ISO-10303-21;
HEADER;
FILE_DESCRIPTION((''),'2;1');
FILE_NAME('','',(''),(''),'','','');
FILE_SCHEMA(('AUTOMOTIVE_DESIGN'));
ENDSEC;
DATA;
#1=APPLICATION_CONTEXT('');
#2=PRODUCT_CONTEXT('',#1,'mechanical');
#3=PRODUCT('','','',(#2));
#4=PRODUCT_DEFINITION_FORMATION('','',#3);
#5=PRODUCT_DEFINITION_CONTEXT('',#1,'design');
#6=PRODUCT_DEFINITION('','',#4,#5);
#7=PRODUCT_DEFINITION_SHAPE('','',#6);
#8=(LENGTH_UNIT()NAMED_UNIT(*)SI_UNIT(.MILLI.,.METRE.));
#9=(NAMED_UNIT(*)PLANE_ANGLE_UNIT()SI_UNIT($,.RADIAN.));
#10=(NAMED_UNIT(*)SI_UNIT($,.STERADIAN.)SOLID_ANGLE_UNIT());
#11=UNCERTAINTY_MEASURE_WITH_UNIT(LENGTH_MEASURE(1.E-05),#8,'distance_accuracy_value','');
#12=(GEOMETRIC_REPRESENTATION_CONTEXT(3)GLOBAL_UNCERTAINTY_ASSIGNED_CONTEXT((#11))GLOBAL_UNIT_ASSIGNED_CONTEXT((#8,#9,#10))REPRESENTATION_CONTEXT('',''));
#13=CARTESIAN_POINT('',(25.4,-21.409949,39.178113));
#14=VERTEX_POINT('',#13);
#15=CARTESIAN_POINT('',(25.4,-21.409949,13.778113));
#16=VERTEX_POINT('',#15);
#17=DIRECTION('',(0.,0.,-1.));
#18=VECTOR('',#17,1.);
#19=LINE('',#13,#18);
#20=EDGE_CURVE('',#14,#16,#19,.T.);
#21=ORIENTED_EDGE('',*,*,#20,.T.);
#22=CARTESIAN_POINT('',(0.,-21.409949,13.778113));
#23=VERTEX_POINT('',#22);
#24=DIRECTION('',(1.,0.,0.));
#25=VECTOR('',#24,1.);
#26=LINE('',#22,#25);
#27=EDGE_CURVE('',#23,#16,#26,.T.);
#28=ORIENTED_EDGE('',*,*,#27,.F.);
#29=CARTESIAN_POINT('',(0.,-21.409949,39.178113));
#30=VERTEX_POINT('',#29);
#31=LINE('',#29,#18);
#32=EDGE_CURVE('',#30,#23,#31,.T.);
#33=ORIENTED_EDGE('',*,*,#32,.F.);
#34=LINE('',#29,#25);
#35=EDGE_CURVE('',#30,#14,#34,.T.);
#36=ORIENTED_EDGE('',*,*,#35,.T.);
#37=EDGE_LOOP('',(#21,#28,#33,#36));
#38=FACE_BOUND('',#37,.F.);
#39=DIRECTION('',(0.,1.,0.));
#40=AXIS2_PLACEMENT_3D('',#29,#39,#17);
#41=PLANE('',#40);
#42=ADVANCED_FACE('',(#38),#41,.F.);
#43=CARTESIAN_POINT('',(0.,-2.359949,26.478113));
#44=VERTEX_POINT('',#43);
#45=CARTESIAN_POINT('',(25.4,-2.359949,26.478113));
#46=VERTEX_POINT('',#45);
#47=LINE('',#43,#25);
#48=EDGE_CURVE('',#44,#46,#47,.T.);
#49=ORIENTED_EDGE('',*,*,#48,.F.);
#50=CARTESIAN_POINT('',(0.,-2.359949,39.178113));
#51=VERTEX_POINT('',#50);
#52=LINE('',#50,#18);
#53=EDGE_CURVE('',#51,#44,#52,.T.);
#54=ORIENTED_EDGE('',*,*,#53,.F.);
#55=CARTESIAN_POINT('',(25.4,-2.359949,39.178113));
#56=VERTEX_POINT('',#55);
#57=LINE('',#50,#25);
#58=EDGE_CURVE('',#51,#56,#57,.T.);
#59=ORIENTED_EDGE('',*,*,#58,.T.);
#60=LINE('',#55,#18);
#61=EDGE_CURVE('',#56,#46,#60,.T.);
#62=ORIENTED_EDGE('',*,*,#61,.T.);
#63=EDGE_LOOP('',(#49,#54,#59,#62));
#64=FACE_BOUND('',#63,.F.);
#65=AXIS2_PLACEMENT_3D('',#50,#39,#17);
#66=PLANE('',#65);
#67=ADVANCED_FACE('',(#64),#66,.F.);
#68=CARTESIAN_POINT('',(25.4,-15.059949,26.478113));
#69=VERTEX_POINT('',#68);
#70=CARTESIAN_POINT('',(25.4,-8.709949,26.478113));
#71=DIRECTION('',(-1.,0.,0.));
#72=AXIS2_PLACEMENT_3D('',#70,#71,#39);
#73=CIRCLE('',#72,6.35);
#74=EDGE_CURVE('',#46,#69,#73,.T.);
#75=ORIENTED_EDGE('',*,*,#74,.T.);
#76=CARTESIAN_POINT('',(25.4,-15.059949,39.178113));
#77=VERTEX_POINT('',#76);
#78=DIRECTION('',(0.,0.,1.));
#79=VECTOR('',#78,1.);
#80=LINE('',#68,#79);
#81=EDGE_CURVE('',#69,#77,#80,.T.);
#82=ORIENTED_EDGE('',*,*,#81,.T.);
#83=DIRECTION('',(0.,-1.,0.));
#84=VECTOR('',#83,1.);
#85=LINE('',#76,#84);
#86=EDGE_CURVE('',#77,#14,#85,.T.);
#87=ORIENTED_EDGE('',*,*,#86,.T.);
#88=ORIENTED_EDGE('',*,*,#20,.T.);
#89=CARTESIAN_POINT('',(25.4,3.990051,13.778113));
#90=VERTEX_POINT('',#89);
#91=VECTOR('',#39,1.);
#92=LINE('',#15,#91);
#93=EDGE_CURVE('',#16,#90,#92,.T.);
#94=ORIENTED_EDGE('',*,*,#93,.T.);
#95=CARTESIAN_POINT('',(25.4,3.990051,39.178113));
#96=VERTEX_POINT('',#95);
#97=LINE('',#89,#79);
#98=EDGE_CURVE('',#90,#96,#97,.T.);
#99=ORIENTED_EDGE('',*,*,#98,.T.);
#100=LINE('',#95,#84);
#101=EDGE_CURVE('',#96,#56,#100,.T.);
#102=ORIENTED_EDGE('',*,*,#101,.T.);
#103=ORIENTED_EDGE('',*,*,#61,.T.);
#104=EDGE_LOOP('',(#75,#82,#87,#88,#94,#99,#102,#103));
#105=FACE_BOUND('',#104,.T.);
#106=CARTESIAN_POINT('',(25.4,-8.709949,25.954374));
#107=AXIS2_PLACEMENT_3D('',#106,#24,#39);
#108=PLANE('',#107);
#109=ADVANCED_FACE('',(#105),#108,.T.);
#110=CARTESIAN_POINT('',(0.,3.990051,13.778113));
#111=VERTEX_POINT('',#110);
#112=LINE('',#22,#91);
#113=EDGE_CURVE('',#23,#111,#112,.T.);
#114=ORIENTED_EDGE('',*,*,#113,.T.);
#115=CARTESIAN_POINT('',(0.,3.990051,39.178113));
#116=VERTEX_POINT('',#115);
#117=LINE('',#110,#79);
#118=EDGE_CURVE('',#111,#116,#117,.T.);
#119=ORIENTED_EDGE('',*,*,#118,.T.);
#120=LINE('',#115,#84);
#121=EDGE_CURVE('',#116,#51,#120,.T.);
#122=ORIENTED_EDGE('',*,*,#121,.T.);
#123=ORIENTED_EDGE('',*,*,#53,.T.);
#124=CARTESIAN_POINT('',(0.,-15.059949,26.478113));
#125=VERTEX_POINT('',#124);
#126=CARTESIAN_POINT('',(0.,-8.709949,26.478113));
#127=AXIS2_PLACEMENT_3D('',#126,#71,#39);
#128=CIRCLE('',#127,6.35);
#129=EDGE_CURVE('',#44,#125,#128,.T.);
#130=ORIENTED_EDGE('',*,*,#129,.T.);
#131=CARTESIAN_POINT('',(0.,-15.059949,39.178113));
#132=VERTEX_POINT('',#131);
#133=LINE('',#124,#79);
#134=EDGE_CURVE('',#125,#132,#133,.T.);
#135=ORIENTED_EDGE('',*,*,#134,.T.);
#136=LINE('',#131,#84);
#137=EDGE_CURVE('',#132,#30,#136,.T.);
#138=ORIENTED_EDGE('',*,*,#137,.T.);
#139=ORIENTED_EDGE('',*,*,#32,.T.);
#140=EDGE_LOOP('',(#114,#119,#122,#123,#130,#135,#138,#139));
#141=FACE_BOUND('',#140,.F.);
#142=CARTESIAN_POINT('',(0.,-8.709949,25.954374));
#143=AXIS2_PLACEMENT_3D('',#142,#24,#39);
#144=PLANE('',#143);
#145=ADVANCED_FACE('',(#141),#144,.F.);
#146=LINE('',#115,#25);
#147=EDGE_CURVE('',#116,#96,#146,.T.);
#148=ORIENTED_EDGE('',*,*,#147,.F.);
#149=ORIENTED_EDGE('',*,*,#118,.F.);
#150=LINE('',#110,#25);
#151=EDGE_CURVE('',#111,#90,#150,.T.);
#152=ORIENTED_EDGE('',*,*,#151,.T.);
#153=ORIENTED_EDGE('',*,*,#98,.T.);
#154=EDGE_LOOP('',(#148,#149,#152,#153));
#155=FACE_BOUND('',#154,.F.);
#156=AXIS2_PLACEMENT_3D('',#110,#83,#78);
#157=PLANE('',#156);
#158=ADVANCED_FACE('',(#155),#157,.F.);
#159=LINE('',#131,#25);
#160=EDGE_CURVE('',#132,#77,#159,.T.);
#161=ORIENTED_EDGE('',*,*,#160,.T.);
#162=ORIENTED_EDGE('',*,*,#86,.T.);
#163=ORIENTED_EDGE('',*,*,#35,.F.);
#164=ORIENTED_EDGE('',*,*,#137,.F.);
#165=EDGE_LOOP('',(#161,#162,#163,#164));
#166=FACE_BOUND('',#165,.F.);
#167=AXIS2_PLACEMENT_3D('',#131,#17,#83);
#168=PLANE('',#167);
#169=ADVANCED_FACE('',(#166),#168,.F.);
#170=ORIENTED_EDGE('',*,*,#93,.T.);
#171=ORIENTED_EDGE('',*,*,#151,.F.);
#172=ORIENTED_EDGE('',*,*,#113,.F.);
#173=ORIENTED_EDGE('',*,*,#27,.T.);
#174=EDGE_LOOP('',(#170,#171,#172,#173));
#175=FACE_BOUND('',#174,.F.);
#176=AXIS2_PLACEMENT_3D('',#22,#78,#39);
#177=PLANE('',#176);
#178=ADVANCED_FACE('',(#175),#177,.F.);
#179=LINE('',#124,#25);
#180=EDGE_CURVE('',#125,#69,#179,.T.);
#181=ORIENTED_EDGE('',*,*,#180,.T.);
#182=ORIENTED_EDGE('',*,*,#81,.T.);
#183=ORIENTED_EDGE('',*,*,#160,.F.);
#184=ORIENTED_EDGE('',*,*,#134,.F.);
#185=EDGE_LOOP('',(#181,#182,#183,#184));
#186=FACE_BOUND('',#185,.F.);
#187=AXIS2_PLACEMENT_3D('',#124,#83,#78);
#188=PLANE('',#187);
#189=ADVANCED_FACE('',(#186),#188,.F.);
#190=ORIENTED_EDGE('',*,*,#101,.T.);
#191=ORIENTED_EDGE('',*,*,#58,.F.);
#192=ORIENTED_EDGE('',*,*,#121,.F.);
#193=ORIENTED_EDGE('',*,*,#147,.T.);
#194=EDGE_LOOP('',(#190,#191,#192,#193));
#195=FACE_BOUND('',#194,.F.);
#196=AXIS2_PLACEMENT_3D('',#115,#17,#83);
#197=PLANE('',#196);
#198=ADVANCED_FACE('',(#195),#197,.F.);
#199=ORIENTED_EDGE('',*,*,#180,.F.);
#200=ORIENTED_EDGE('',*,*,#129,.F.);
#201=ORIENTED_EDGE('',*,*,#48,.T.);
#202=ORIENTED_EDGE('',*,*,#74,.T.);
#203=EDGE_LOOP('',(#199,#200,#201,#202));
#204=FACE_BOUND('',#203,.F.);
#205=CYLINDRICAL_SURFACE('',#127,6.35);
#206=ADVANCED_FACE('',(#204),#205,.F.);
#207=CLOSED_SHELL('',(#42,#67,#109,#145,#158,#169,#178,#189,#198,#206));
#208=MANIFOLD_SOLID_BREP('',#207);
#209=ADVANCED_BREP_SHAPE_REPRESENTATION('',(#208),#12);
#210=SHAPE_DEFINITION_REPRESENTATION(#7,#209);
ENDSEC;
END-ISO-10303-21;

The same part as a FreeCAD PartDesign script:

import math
import FreeCAD as App
import Part
import Sketcher

V = App.Vector
Q = App.Units.Quantity

doc = App.newDocument("Part")
body = doc.addObject("PartDesign::Body", "Body")

# Sketch on YZ plane
sketch1 = doc.addObject("Sketcher::SketchObject", "Sketch")
body.addObject(sketch1)
sketch1.AttachmentSupport = (doc.YZ_Plane, [""])
sketch1.MapMode = "FlatFace"
sketch1.addGeometry([
    Part.LineSegment(V(-15.059949, 39.178113, 0), V(-21.409949, 39.178113, 0)),  # 0
    Part.LineSegment(V(-21.409949, 39.178113, 0), V(-21.409949, 13.778113, 0)),  # 1
    Part.LineSegment(V(-21.409949, 13.778113, 0), V(3.990051, 13.778113, 0)),  # 2
    Part.LineSegment(V(3.990051, 13.778113, 0), V(3.990051, 39.178113, 0)),  # 3
    Part.LineSegment(V(3.990051, 39.178113, 0), V(-2.359949, 39.178113, 0)),  # 4
    Part.LineSegment(V(-2.359949, 39.178113, 0), V(-2.359949, 26.478113, 0)),  # 5
    Part.ArcOfCircle(Part.Circle(V(-8.709949, 26.478113, 0), V(0, 0, 1), 6.35), math.radians(180), math.radians(360)),  # 6
    Part.LineSegment(V(-15.059949, 26.478113, 0), V(-15.059949, 39.178113, 0)),  # 7
], False)
sketch1.addConstraint([
    Sketcher.Constraint("Coincident", 0, 2, 1, 1),
    Sketcher.Constraint("Coincident", 1, 2, 2, 1),
    Sketcher.Constraint("Coincident", 2, 2, 3, 1),
    Sketcher.Constraint("Coincident", 3, 2, 4, 1),
    Sketcher.Constraint("Coincident", 4, 2, 5, 1),
    Sketcher.Constraint("Tangent", 5, 2, 6, 2),
    Sketcher.Constraint("Tangent", 6, 1, 7, 1),
    Sketcher.Constraint("Coincident", 7, 2, 0, 1),
    Sketcher.Constraint("Horizontal", 0),
    Sketcher.Constraint("Vertical", 1),
    Sketcher.Constraint("Horizontal", 2),
    Sketcher.Constraint("Vertical", 3),
    Sketcher.Constraint("Horizontal", 4),
    Sketcher.Constraint("Vertical", 5),
    Sketcher.Constraint("Vertical", 7),
    Sketcher.Constraint("Horizontal", 0, 2, 3, 2),
    Sketcher.Constraint("Equal", 0, 4),
    Sketcher.Constraint("Equal", 2, 1),
    Sketcher.Constraint("DistanceX", 2, 1, 2, 2, Q("1 in")),
    Sketcher.Constraint("Radius", 6, Q("0.25 in")),
    Sketcher.Constraint("DistanceY", 5, 2, 5, 1, Q("0.5 in")),
    Sketcher.Constraint("DistanceX", 6, 3, -1, 1, Q("8.709949 mm")),
    Sketcher.Constraint("DistanceY", -1, 1, 6, 3, Q("26.478113 mm")),
])
pad1 = doc.addObject("PartDesign::Pad", "Pad")
body.addObject(pad1)
pad1.Profile = sketch1
pad1.Length = Q("1 in")

doc.recompute()
